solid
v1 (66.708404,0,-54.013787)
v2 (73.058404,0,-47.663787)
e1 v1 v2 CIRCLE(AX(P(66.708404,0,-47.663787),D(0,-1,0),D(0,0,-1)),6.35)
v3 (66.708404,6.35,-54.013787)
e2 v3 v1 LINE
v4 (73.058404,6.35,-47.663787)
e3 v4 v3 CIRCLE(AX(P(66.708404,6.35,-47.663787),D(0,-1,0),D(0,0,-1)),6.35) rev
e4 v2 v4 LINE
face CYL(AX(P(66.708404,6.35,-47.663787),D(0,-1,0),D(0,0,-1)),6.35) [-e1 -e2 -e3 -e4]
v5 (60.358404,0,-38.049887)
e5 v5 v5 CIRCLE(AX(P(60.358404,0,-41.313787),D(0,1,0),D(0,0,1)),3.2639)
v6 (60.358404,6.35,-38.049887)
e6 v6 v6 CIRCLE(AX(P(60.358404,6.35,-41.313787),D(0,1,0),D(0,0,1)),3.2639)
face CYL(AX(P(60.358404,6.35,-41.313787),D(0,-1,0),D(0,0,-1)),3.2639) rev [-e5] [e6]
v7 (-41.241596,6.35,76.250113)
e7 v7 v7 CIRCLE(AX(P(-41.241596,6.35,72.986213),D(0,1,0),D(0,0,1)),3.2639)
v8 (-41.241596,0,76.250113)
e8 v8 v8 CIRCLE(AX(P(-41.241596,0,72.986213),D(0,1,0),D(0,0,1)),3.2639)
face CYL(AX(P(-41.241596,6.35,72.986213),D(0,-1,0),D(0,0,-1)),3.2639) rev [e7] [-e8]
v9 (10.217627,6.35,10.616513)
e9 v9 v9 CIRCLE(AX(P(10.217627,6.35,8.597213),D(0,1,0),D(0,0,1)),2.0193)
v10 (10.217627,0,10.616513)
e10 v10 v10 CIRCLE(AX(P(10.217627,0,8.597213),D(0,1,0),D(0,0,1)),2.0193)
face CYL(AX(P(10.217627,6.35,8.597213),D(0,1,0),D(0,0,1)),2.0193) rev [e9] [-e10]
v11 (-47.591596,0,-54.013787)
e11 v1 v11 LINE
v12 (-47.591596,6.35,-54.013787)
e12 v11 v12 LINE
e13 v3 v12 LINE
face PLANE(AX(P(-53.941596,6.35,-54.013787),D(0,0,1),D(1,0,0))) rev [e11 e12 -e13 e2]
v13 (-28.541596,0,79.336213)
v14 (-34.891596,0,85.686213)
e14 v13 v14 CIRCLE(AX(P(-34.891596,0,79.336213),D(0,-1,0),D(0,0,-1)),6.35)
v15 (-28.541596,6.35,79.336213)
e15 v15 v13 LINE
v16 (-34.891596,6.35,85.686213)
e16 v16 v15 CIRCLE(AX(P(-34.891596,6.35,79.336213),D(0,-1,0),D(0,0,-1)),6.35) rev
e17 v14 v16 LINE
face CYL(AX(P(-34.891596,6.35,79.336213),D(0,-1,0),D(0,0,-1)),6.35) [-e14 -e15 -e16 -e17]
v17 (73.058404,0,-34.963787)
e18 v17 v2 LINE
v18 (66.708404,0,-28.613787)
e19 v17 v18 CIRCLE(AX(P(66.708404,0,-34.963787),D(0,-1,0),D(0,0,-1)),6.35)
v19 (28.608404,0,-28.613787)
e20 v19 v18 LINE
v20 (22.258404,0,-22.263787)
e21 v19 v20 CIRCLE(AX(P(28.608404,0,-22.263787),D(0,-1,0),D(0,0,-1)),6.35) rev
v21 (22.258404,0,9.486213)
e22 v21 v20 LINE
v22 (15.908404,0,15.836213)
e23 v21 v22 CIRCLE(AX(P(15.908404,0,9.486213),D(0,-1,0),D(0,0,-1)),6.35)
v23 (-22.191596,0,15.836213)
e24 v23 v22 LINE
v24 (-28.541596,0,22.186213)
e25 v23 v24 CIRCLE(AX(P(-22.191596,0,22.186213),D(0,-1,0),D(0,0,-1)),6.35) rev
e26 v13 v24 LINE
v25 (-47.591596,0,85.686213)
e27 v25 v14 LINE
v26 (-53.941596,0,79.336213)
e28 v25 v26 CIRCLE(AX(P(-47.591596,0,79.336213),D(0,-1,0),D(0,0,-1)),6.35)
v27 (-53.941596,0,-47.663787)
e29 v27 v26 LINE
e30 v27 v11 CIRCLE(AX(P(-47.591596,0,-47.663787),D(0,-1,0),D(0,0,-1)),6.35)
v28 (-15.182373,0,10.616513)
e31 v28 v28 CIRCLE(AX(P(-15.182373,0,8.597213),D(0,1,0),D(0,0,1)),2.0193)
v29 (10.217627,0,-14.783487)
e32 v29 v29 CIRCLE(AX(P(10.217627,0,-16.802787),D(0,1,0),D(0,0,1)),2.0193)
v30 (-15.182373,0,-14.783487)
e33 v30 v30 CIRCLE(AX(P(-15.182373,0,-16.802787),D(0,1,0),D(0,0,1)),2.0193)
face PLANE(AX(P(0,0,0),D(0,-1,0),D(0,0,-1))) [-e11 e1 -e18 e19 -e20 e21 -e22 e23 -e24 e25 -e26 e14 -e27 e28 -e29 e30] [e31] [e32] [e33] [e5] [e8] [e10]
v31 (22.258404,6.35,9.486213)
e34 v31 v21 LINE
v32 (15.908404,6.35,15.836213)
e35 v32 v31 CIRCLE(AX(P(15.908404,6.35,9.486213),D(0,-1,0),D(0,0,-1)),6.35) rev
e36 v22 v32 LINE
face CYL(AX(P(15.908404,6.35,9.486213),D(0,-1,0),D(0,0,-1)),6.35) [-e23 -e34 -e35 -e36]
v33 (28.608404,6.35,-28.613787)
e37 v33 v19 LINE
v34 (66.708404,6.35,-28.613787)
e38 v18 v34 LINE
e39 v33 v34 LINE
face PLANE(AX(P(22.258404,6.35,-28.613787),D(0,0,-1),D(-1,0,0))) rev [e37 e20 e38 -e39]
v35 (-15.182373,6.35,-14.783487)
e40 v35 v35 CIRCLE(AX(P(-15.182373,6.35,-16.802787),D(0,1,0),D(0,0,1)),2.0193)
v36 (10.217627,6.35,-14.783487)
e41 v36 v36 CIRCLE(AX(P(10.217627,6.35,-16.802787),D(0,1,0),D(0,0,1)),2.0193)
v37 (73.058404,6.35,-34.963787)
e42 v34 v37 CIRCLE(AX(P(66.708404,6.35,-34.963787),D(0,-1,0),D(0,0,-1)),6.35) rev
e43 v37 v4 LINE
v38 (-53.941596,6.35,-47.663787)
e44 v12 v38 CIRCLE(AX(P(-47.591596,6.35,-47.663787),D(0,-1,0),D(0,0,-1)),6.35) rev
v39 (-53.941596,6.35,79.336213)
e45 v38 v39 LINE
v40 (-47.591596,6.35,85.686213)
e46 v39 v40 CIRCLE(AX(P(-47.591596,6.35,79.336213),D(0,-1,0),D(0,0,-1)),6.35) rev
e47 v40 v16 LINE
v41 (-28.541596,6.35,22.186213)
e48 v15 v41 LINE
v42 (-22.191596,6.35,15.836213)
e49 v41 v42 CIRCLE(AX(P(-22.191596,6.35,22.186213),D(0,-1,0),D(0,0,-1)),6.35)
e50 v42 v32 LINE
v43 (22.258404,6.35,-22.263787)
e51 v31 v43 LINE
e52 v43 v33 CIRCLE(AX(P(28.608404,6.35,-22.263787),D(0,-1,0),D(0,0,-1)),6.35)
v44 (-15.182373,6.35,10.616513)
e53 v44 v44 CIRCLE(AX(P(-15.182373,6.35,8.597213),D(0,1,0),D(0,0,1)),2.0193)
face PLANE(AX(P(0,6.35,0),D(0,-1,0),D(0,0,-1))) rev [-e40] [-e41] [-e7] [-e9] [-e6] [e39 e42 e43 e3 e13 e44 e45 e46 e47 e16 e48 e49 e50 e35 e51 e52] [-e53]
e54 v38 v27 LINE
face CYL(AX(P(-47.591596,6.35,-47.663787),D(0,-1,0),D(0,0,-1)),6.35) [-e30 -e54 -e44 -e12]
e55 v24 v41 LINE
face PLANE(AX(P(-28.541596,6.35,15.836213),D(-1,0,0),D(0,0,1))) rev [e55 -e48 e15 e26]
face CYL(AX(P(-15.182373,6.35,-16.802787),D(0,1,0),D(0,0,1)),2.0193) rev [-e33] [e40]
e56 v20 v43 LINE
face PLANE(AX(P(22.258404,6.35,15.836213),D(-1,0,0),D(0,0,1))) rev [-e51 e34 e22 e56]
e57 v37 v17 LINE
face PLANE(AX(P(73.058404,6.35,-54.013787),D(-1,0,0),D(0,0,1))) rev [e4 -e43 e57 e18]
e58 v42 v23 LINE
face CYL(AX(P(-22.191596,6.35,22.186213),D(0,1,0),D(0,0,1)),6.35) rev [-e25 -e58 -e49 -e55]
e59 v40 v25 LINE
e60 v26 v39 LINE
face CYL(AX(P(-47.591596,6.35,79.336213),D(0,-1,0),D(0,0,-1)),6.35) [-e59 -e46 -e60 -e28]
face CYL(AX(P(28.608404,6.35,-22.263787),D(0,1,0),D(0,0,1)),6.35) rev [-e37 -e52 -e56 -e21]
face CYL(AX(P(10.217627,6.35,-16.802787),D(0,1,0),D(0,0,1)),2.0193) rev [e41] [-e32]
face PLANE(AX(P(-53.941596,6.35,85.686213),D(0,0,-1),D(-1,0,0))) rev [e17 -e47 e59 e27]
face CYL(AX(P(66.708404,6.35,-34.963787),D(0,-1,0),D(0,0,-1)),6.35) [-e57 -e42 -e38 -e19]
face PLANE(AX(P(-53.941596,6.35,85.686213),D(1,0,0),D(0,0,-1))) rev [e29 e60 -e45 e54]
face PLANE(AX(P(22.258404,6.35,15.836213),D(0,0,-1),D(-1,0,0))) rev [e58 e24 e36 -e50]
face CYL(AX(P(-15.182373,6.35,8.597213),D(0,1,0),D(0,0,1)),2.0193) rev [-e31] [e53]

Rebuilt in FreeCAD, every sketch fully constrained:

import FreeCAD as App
import Part
import Sketcher
from FreeCAD import Vector
Q = App.Units.Quantity


def edges_at(feature, points):
    """Names of the edges that pass closest to the given points."""
    edges = feature.Shape.Edges
    near = lambda p: min(range(len(edges)), key=lambda i: edges[i].distToShape(Part.Vertex(*p))[0])
    return sorted({f"Edge{near(p) + 1}" for p in points})


def add_polygon(sketch, points):
    """Adds a closed chain of lines whose ends are joined by coincident constraints."""
    first, n = sketch.GeometryCount, len(points)
    for a, b in zip(points, points[1:] + points[:1]):
        sketch.addGeometry(Part.LineSegment(App.Vector(*a, 0), App.Vector(*b, 0)), False)
    for i in range(n):
        sketch.addConstraint(Sketcher.Constraint("Coincident", first + i, 2, first + (i + 1) % n, 1))

doc = App.newDocument("Part")
body = doc.addObject("PartDesign::Body", "Body")

sketch1 = body.newObject("Sketcher::SketchObject", "Sketch")
sketch1.AttachmentSupport = (doc.getObject("XZ_Plane"), [""])
sketch1.MapMode = "FlatFace"
add_polygon(sketch1, [(73.1, -54), (-53.9, -54), (-53.9, 85.7), (-28.5, 85.7), (-28.5, 15.8), (22.3, 15.8), (22.3, -28.6), (73.1, -28.6)])
sketch1.addGeometry(Part.Circle(Vector(-41.2, 73, 0), Vector(0, 0, 1), 3.3), False)
sketch1.addGeometry(Part.Circle(Vector(60.4, -41.3, 0), Vector(0, 0, 1), 3.3), False)
sketch1.addConstraint(Sketcher.Constraint("Horizontal", 0))
sketch1.addConstraint(Sketcher.Constraint("Vertical", 1))
sketch1.addConstraint(Sketcher.Constraint("Horizontal", 2))
sketch1.addConstraint(Sketcher.Constraint("Vertical", 3))
sketch1.addConstraint(Sketcher.Constraint("Horizontal", 4))
sketch1.addConstraint(Sketcher.Constraint("Vertical", 5))
sketch1.addConstraint(Sketcher.Constraint("Horizontal", 6))
sketch1.addConstraint(Sketcher.Constraint("Vertical", 7))
sketch1.addConstraint(Sketcher.Constraint("Equal", 8, 9))
sketch1.addConstraint(Sketcher.Constraint("Equal", 4, 6))
sketch1.addConstraint(Sketcher.Constraint("Equal", 2, 7))
sketch1.addConstraint(Sketcher.Constraint("DistanceX", 0, 2, 0, 1, Q("5 in")))
sketch1.addConstraint(Sketcher.Constraint("DistanceX", 2, 1, 2, 2, Q("1 in")))
sketch1.addConstraint(Sketcher.Constraint("Diameter", 8, Q("0.257 in")))
sketch1.addConstraint(Sketcher.Constraint("DistanceY", 1, 1, 1, 2, Q("5.5 in")))
sketch1.addConstraint(Sketcher.Constraint("DistanceX", 8, 3, 9, 3, Q("4 in")))
sketch1.addConstraint(Sketcher.Constraint("DistanceY", 0, 2, 8, 3, Q("5 in")))
sketch1.addConstraint(Sketcher.Constraint("DistanceY", 9, 3, 1, 2, Q("5 in")))
sketch1.addConstraint(Sketcher.Constraint("DistanceY", 3, 2, 3, 1, Q("2.75 in")))
sketch1.addConstraint(Sketcher.Constraint("DistanceX", 0, 2, 9, 3, Q("4.5 in")))
sketch1.addConstraint(Sketcher.Constraint("DistanceX", 8, 3, -1, 1, Q("41.241596 mm")))
sketch1.addConstraint(Sketcher.Constraint("DistanceY", -1, 1, 8, 3, Q("72.986213 mm")))
pad1 = body.newObject("PartDesign::Pad", "Pad")
pad1.Profile = sketch1
pad1.Length = Q("0.25 in")
pad1.Reversed = True
doc.recompute()

fillet = body.newObject("PartDesign::Fillet", "Fillet")
fillet.Base = (pad1, edges_at(pad1, [(-28.542, 3.175, 15.836)]))
fillet.Radius = Q("0.25 in")
doc.recompute()

fillet2 = body.newObject("PartDesign::Fillet", "Fillet001")
fillet2.Base = (fillet, edges_at(fillet, [(-53.942, 3.175, -54.014)]))
fillet2.Radius = Q("0.25 in")
doc.recompute()

fillet3 = body.newObject("PartDesign::Fillet", "Fillet002")
fillet3.Base = (fillet2, edges_at(fillet2, [(-53.942, 3.175, 85.686)]))
fillet3.Radius = Q("0.25 in")
doc.recompute()

fillet4 = body.newObject("PartDesign::Fillet", "Fillet003")
fillet4.Base = (fillet3, edges_at(fillet3, [(-28.542, 3.175, 85.686)]))
fillet4.Radius = Q("0.25 in")
doc.recompute()

fillet5 = body.newObject("PartDesign::Fillet", "Fillet004")
fillet5.Base = (fillet4, edges_at(fillet4, [(22.258, 3.175, 15.836)]))
fillet5.Radius = Q("0.25 in")
doc.recompute()

fillet6 = body.newObject("PartDesign::Fillet", "Fillet005")
fillet6.Base = (fillet5, edges_at(fillet5, [(22.258, 3.175, -28.614)]))
fillet6.Radius = Q("0.25 in")
doc.recompute()

fillet7 = body.newObject("PartDesign::Fillet", "Fillet006")
fillet7.Base = (fillet6, edges_at(fillet6, [(73.058, 3.175, -28.614)]))
fillet7.Radius = Q("0.25 in")
doc.recompute()

fillet8 = body.newObject("PartDesign::Fillet", "Fillet007")
fillet8.Base = (fillet7, edges_at(fillet7, [(73.058, 3.175, -54.014)]))
fillet8.Radius = Q("0.25 in")

sketch2 = body.newObject("Sketcher::SketchObject", "Sketch001")
sketch2.AttachmentSupport = (doc.getObject("XZ_Plane"), [""])
sketch2.MapMode = "FlatFace"
sketch2.AttachmentOffset = App.Placement(Vector(0, 0, -0.25 * 25.4), App.Rotation())
sketch2.addGeometry(Part.Circle(Vector(-15.2, -16.8, 0), Vector(0, 0, 1), 2), False)
sketch2.addGeometry(Part.Circle(Vector(-15.2, 8.6, 0), Vector(0, 0, 1), 2), False)
sketch2.addGeometry(Part.Circle(Vector(10.2, 8.6, 0), Vector(0, 0, 1), 2), False)
sketch2.addGeometry(Part.Circle(Vector(10.2, -16.8, 0), Vector(0, 0, 1), 2), False)
sketch2.addConstraint(Sketcher.Constraint("Equal", 0, 1))
sketch2.addConstraint(Sketcher.Constraint("Equal", 1, 2))
sketch2.addConstraint(Sketcher.Constraint("Equal", 2, 3))
sketch2.addConstraint(Sketcher.Constraint("Horizontal", 1, 3, 2, 3))
sketch2.addConstraint(Sketcher.Constraint("Horizontal", 0, 3, 3, 3))
sketch2.addConstraint(Sketcher.Constraint("Vertical", 0, 3, 1, 3))
sketch2.addConstraint(Sketcher.Constraint("Vertical", 2, 3, 3, 3))
sketch2.addConstraint(Sketcher.Constraint("Diameter", 0, Q("0.159 in")))
sketch2.addConstraint(Sketcher.Constraint("DistanceY", 0, 3, 1, 3, Q("1 in")))
sketch2.addConstraint(Sketcher.Constraint("DistanceX", 1, 3, 2, 3, Q("1 in")))
sketch2.addConstraint(Sketcher.Constraint("DistanceX", 0, 3, -1, 1, Q("15.182373 mm")))
sketch2.addConstraint(Sketcher.Constraint("DistanceY", 0, 3, -1, 1, Q("16.802787 mm")))
doc.recompute()
hole = body.newObject("PartDesign::Hole", "Hole")
hole.Profile = sketch2
hole.ThreadType = "None"
hole.Diameter = Q("0.159 in")
hole.DepthType = "ThroughAll"
hole.Reversed = True

doc.recompute()
